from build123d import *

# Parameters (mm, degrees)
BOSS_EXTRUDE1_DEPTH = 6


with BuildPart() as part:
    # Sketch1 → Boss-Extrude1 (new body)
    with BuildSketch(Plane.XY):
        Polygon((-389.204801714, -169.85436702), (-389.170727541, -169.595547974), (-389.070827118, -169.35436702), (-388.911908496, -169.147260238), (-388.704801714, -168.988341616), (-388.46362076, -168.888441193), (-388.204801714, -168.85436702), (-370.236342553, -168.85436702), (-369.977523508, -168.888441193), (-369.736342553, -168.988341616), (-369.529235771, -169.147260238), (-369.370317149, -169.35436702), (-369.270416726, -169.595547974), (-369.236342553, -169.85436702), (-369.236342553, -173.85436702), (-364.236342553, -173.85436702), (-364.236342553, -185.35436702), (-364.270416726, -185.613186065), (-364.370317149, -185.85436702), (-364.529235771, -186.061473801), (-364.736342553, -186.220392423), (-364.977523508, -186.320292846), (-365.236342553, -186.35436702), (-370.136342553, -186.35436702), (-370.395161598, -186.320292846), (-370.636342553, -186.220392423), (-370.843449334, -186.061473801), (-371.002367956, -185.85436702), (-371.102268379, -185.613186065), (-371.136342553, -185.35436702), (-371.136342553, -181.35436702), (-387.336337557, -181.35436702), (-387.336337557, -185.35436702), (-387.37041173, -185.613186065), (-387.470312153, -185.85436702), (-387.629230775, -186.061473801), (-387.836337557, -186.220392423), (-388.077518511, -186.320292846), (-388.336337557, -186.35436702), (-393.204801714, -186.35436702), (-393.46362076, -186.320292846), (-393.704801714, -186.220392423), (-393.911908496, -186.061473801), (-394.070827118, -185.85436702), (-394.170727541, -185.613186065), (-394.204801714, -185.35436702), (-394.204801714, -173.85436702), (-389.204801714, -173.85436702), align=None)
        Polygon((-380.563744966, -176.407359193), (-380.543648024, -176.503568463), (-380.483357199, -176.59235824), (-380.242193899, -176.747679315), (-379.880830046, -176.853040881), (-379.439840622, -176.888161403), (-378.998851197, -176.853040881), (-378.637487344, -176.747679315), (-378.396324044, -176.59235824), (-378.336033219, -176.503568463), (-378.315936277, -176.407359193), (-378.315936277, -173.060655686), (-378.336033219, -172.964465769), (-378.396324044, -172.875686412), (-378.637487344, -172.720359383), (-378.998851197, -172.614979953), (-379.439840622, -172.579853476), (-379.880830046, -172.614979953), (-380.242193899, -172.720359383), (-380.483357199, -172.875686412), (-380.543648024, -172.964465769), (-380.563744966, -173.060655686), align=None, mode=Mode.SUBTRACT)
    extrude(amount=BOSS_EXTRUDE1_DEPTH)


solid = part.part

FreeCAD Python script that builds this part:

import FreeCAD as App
import Part
import Sketcher
Q = App.Units.Quantity

doc = App.newDocument("Part")
body = doc.addObject("PartDesign::Body", "Body")

sketch1 = body.newObject("Sketcher::SketchObject", "Sketch")
sketch1.AttachmentSupport = (doc.getObject("XY_Plane"), [""])
sketch1.MapMode = "FlatFace"
sketch1.addGeometry(Part.LineSegment(App.Vector(-389.170728, -169.595548, 0), App.Vector(-389.204802, -169.854367, 0)), False)
sketch1.addGeometry(Part.LineSegment(App.Vector(-389.204802, -169.854367, 0), App.Vector(-389.204802, -173.854367, 0)), False)
sketch1.addGeometry(Part.LineSegment(App.Vector(-389.204802, -173.854367, 0), App.Vector(-394.204802, -173.854367, 0)), False)
sketch1.addGeometry(Part.LineSegment(App.Vector(-394.204802, -173.854367, 0), App.Vector(-394.204802, -185.354367, 0)), False)
sketch1.addGeometry(Part.LineSegment(App.Vector(-394.204802, -185.354367, 0), App.Vector(-394.170728, -185.613186, 0)), False)
sketch1.addGeometry(Part.LineSegment(App.Vector(-394.170728, -185.613186, 0), App.Vector(-394.070827, -185.854367, 0)), False)
sketch1.addGeometry(Part.LineSegment(App.Vector(-394.070827, -185.854367, 0), App.Vector(-393.911908, -186.061474, 0)), False)
sketch1.addGeometry(Part.LineSegment(App.Vector(-393.911908, -186.061474, 0), App.Vector(-393.704802, -186.220392, 0)), False)
sketch1.addGeometry(Part.LineSegment(App.Vector(-393.704802, -186.220392, 0), App.Vector(-393.463621, -186.320293, 0)), False)
sketch1.addGeometry(Part.LineSegment(App.Vector(-393.463621, -186.320293, 0), App.Vector(-393.204802, -186.354367, 0)), False)
sketch1.addGeometry(Part.LineSegment(App.Vector(-393.204802, -186.354367, 0), App.Vector(-388.336338, -186.354367, 0)), False)
sketch1.addGeometry(Part.LineSegment(App.Vector(-388.336338, -186.354367, 0), App.Vector(-388.077519, -186.320293, 0)), False)
sketch1.addGeometry(Part.LineSegment(App.Vector(-388.077519, -186.320293, 0), App.Vector(-387.836338, -186.220392, 0)), False)
sketch1.addGeometry(Part.LineSegment(App.Vector(-387.836338, -186.220392, 0), App.Vector(-387.629231, -186.061474, 0)), False)
sketch1.addGeometry(Part.LineSegment(App.Vector(-387.629231, -186.061474, 0), App.Vector(-387.470312, -185.854367, 0)), False)
sketch1.addGeometry(Part.LineSegment(App.Vector(-387.470312, -185.854367, 0), App.Vector(-387.370412, -185.613186, 0)), False)
sketch1.addGeometry(Part.LineSegment(App.Vector(-387.370412, -185.613186, 0), App.Vector(-387.336338, -185.354367, 0)), False)
sketch1.addGeometry(Part.LineSegment(App.Vector(-387.336338, -185.354367, 0), App.Vector(-387.336338, -181.354367, 0)), False)
sketch1.addGeometry(Part.LineSegment(App.Vector(-387.336338, -181.354367, 0), App.Vector(-371.136343, -181.354367, 0)), False)
sketch1.addGeometry(Part.LineSegment(App.Vector(-371.136343, -181.354367, 0), App.Vector(-371.136343, -185.354367, 0)), False)
sketch1.addGeometry(Part.LineSegment(App.Vector(-371.136343, -185.354367, 0), App.Vector(-371.102268, -185.613186, 0)), False)
sketch1.addGeometry(Part.LineSegment(App.Vector(-371.102268, -185.613186, 0), App.Vector(-371.002368, -185.854367, 0)), False)
sketch1.addGeometry(Part.LineSegment(App.Vector(-371.002368, -185.854367, 0), App.Vector(-370.843449, -186.061474, 0)), False)
sketch1.addGeometry(Part.LineSegment(App.Vector(-370.843449, -186.061474, 0), App.Vector(-370.636343, -186.220392, 0)), False)
sketch1.addGeometry(Part.LineSegment(App.Vector(-370.636343, -186.220392, 0), App.Vector(-370.395162, -186.320293, 0)), False)
sketch1.addGeometry(Part.LineSegment(App.Vector(-370.395162, -186.320293, 0), App.Vector(-370.136343, -186.354367, 0)), False)
sketch1.addGeometry(Part.LineSegment(App.Vector(-370.136343, -186.354367, 0), App.Vector(-365.236343, -186.354367, 0)), False)
sketch1.addGeometry(Part.LineSegment(App.Vector(-365.236343, -186.354367, 0), App.Vector(-364.977524, -186.320293, 0)), False)
sketch1.addGeometry(Part.LineSegment(App.Vector(-364.977524, -186.320293, 0), App.Vector(-364.736343, -186.220392, 0)), False)
sketch1.addGeometry(Part.LineSegment(App.Vector(-364.736343, -186.220392, 0), App.Vector(-364.529236, -186.061474, 0)), False)
sketch1.addGeometry(Part.LineSegment(App.Vector(-364.529236, -186.061474, 0), App.Vector(-364.370317, -185.854367, 0)), False)
sketch1.addGeometry(Part.LineSegment(App.Vector(-364.370317, -185.854367, 0), App.Vector(-364.270417, -185.613186, 0)), False)
sketch1.addGeometry(Part.LineSegment(App.Vector(-364.270417, -185.613186, 0), App.Vector(-364.236343, -185.354367, 0)), False)
sketch1.addGeometry(Part.LineSegment(App.Vector(-364.236343, -185.354367, 0), App.Vector(-364.236343, -173.854367, 0)), False)
sketch1.addGeometry(Part.LineSegment(App.Vector(-364.236343, -173.854367, 0), App.Vector(-369.236343, -173.854367, 0)), False)
sketch1.addGeometry(Part.LineSegment(App.Vector(-369.236343, -173.854367, 0), App.Vector(-369.236343, -169.854367, 0)), False)
sketch1.addGeometry(Part.LineSegment(App.Vector(-369.236343, -169.854367, 0), App.Vector(-369.270417, -169.595548, 0)), False)
sketch1.addGeometry(Part.LineSegment(App.Vector(-369.270417, -169.595548, 0), App.Vector(-369.370317, -169.354367, 0)), False)
sketch1.addGeometry(Part.LineSegment(App.Vector(-369.370317, -169.354367, 0), App.Vector(-369.529236, -169.14726, 0)), False)
sketch1.addGeometry(Part.LineSegment(App.Vector(-369.529236, -169.14726, 0), App.Vector(-369.736343, -168.988342, 0)), False)
sketch1.addGeometry(Part.LineSegment(App.Vector(-369.736343, -168.988342, 0), App.Vector(-369.977524, -168.888441, 0)), False)
sketch1.addGeometry(Part.LineSegment(App.Vector(-369.977524, -168.888441, 0), App.Vector(-370.236343, -168.854367, 0)), False)
sketch1.addGeometry(Part.LineSegment(App.Vector(-370.236343, -168.854367, 0), App.Vector(-388.204802, -168.854367, 0)), False)
sketch1.addGeometry(Part.LineSegment(App.Vector(-388.204802, -168.854367, 0), App.Vector(-388.463621, -168.888441, 0)), False)
sketch1.addGeometry(Part.LineSegment(App.Vector(-388.463621, -168.888441, 0), App.Vector(-388.704802, -168.988342, 0)), False)
sketch1.addGeometry(Part.LineSegment(App.Vector(-388.704802, -168.988342, 0), App.Vector(-388.911908, -169.14726, 0)), False)
sketch1.addGeometry(Part.LineSegment(App.Vector(-388.911908, -169.14726, 0), App.Vector(-389.070827, -169.354367, 0)), False)
sketch1.addGeometry(Part.LineSegment(App.Vector(-389.070827, -169.354367, 0), App.Vector(-389.170728, -169.595548, 0)), False)
sketch1.addGeometry(Part.LineSegment(App.Vector(-380.563745, -176.407359, 0), App.Vector(-380.563745, -173.060656, 0)), False)
sketch1.addGeometry(Part.LineSegment(App.Vector(-380.563745, -173.060656, 0), App.Vector(-380.543648, -172.964466, 0)), False)
sketch1.addGeometry(Part.LineSegment(App.Vector(-380.543648, -172.964466, 0), App.Vector(-380.483357, -172.875686, 0)), False)
sketch1.addGeometry(Part.LineSegment(App.Vector(-380.483357, -172.875686, 0), App.Vector(-380.242194, -172.720359, 0)), False)
sketch1.addGeometry(Part.LineSegment(App.Vector(-380.242194, -172.720359, 0), App.Vector(-379.88083, -172.61498, 0)), False)
sketch1.addGeometry(Part.LineSegment(App.Vector(-379.88083, -172.61498, 0), App.Vector(-379.439841, -172.579853, 0)), False)
sketch1.addGeometry(Part.LineSegment(App.Vector(-379.439841, -172.579853, 0), App.Vector(-378.998851, -172.61498, 0)), False)
sketch1.addGeometry(Part.LineSegment(App.Vector(-378.998851, -172.61498, 0), App.Vector(-378.637487, -172.720359, 0)), False)
sketch1.addGeometry(Part.LineSegment(App.Vector(-378.637487, -172.720359, 0), App.Vector(-378.396324, -172.875686, 0)), False)
sketch1.addGeometry(Part.LineSegment(App.Vector(-378.396324, -172.875686, 0), App.Vector(-378.336033, -172.964466, 0)), False)
sketch1.addGeometry(Part.LineSegment(App.Vector(-378.336033, -172.964466, 0), App.Vector(-378.315936, -173.060656, 0)), False)
sketch1.addGeometry(Part.LineSegment(App.Vector(-378.315936, -173.060656, 0), App.Vector(-378.315936, -176.407359, 0)), False)
sketch1.addGeometry(Part.LineSegment(App.Vector(-378.315936, -176.407359, 0), App.Vector(-378.336033, -176.503568, 0)), False)
sketch1.addGeometry(Part.LineSegment(App.Vector(-378.336033, -176.503568, 0), App.Vector(-378.396324, -176.592358, 0)), False)
sketch1.addGeometry(Part.LineSegment(App.Vector(-378.396324, -176.592358, 0), App.Vector(-378.637487, -176.747679, 0)), False)
sketch1.addGeometry(Part.LineSegment(App.Vector(-378.637487, -176.747679, 0), App.Vector(-378.998851, -176.853041, 0)), False)
sketch1.addGeometry(Part.LineSegment(App.Vector(-378.998851, -176.853041, 0), App.Vector(-379.439841, -176.888161, 0)), False)
sketch1.addGeometry(Part.LineSegment(App.Vector(-379.439841, -176.888161, 0), App.Vector(-379.88083, -176.853041, 0)), False)
sketch1.addGeometry(Part.LineSegment(App.Vector(-379.88083, -176.853041, 0), App.Vector(-380.242194, -176.747679, 0)), False)
sketch1.addGeometry(Part.LineSegment(App.Vector(-380.242194, -176.747679, 0), App.Vector(-380.483357, -176.592358, 0)), False)
sketch1.addGeometry(Part.LineSegment(App.Vector(-380.483357, -176.592358, 0), App.Vector(-380.543648, -176.503568, 0)), False)
sketch1.addGeometry(Part.LineSegment(App.Vector(-380.543648, -176.503568, 0), App.Vector(-380.563745, -176.407359, 0)), False)
sketch1.addConstraint(Sketcher.Constraint("Coincident", 0, 2, 1, 1))
sketch1.addConstraint(Sketcher.Constraint("Coincident", 1, 2, 2, 1))
sketch1.addConstraint(Sketcher.Constraint("Coincident", 2, 2, 3, 1))
sketch1.addConstraint(Sketcher.Constraint("Coincident", 3, 2, 4, 1))
sketch1.addConstraint(Sketcher.Constraint("Coincident", 4, 2, 5, 1))
sketch1.addConstraint(Sketcher.Constraint("Coincident", 5, 2, 6, 1))
sketch1.addConstraint(Sketcher.Constraint("Coincident", 6, 2, 7, 1))
sketch1.addConstraint(Sketcher.Constraint("Coincident", 7, 2, 8, 1))
sketch1.addConstraint(Sketcher.Constraint("Coincident", 8, 2, 9, 1))
sketch1.addConstraint(Sketcher.Constraint("Coincident", 9, 2, 10, 1))
sketch1.addConstraint(Sketcher.Constraint("Coincident", 10, 2, 11, 1))
sketch1.addConstraint(Sketcher.Constraint("Coincident", 11, 2, 12, 1))
sketch1.addConstraint(Sketcher.Constraint("Coincident", 12, 2, 13, 1))
sketch1.addConstraint(Sketcher.Constraint("Coincident", 13, 2, 14, 1))
sketch1.addConstraint(Sketcher.Constraint("Coincident", 14, 2, 15, 1))
sketch1.addConstraint(Sketcher.Constraint("Coincident", 15, 2, 16, 1))
sketch1.addConstraint(Sketcher.Constraint("Coincident", 16, 2, 17, 1))
sketch1.addConstraint(Sketcher.Constraint("Coincident", 17, 2, 18, 1))
sketch1.addConstraint(Sketcher.Constraint("Coincident", 18, 2, 19, 1))
sketch1.addConstraint(Sketcher.Constraint("Coincident", 19, 2, 20, 1))
sketch1.addConstraint(Sketcher.Constraint("Coincident", 20, 2, 21, 1))
sketch1.addConstraint(Sketcher.Constraint("Coincident", 21, 2, 22, 1))
sketch1.addConstraint(Sketcher.Constraint("Coincident", 22, 2, 23, 1))
sketch1.addConstraint(Sketcher.Constraint("Coincident", 23, 2, 24, 1))
sketch1.addConstraint(Sketcher.Constraint("Coincident", 24, 2, 25, 1))
sketch1.addConstraint(Sketcher.Constraint("Coincident", 25, 2, 26, 1))
sketch1.addConstraint(Sketcher.Constraint("Coincident", 26, 2, 27, 1))
sketch1.addConstraint(Sketcher.Constraint("Coincident", 27, 2, 28, 1))
sketch1.addConstraint(Sketcher.Constraint("Coincident", 28, 2, 29, 1))
sketch1.addConstraint(Sketcher.Constraint("Coincident", 29, 2, 30, 1))
sketch1.addConstraint(Sketcher.Constraint("Coincident", 30, 2, 31, 1))
sketch1.addConstraint(Sketcher.Constraint("Coincident", 31, 2, 32, 1))
sketch1.addConstraint(Sketcher.Constraint("Coincident", 32, 2, 33, 1))
sketch1.addConstraint(Sketcher.Constraint("Coincident", 33, 2, 34, 1))
sketch1.addConstraint(Sketcher.Constraint("Coincident", 34, 2, 35, 1))
sketch1.addConstraint(Sketcher.Constraint("Coincident", 35, 2, 36, 1))
sketch1.addConstraint(Sketcher.Constraint("Coincident", 36, 2, 37, 1))
sketch1.addConstraint(Sketcher.Constraint("Coincident", 37, 2, 38, 1))
sketch1.addConstraint(Sketcher.Constraint("Coincident", 38, 2, 39, 1))
sketch1.addConstraint(Sketcher.Constraint("Coincident", 39, 2, 40, 1))
sketch1.addConstraint(Sketcher.Constraint("Coincident", 40, 2, 41, 1))
sketch1.addConstraint(Sketcher.Constraint("Coincident", 41, 2, 42, 1))
sketch1.addConstraint(Sketcher.Constraint("Coincident", 42, 2, 43, 1))
sketch1.addConstraint(Sketcher.Constraint("Coincident", 43, 2, 44, 1))
sketch1.addConstraint(Sketcher.Constraint("Coincident", 44, 2, 45, 1))
sketch1.addConstraint(Sketcher.Constraint("Coincident", 45, 2, 46, 1))
sketch1.addConstraint(Sketcher.Constraint("Coincident", 46, 2, 47, 1))
sketch1.addConstraint(Sketcher.Constraint("Coincident", 47, 2, 0, 1))
sketch1.addConstraint(Sketcher.Constraint("Coincident", 48, 2, 49, 1))
sketch1.addConstraint(Sketcher.Constraint("Coincident", 49, 2, 50, 1))
sketch1.addConstraint(Sketcher.Constraint("Coincident", 50, 2, 51, 1))
sketch1.addConstraint(Sketcher.Constraint("Coincident", 51, 2, 52, 1))
sketch1.addConstraint(Sketcher.Constraint("Coincident", 52, 2, 53, 1))
sketch1.addConstraint(Sketcher.Constraint("Coincident", 53, 2, 54, 1))
sketch1.addConstraint(Sketcher.Constraint("Coincident", 54, 2, 55, 1))
sketch1.addConstraint(Sketcher.Constraint("Coincident", 55, 2, 56, 1))
sketch1.addConstraint(Sketcher.Constraint("Coincident", 56, 2, 57, 1))
sketch1.addConstraint(Sketcher.Constraint("Coincident", 57, 2, 58, 1))
sketch1.addConstraint(Sketcher.Constraint("Coincident", 58, 2, 59, 1))
sketch1.addConstraint(Sketcher.Constraint("Coincident", 59, 2, 60, 1))
sketch1.addConstraint(Sketcher.Constraint("Coincident", 60, 2, 61, 1))
sketch1.addConstraint(Sketcher.Constraint("Coincident", 61, 2, 62, 1))
sketch1.addConstraint(Sketcher.Constraint("Coincident", 62, 2, 63, 1))
sketch1.addConstraint(Sketcher.Constraint("Coincident", 63, 2, 64, 1))
sketch1.addConstraint(Sketcher.Constraint("Coincident", 64, 2, 65, 1))
sketch1.addConstraint(Sketcher.Constraint("Coincident", 65, 2, 66, 1))
sketch1.addConstraint(Sketcher.Constraint("Coincident", 66, 2, 67, 1))
sketch1.addConstraint(Sketcher.Constraint("Coincident", 67, 2, 68, 1))
sketch1.addConstraint(Sketcher.Constraint("Coincident", 68, 2, 69, 1))
sketch1.addConstraint(Sketcher.Constraint("Coincident", 69, 2, 48, 1))
sketch1.addConstraint(Sketcher.Constraint("Vertical", 1))
sketch1.addConstraint(Sketcher.Constraint("Horizontal", 2))
sketch1.addConstraint(Sketcher.Constraint("Vertical", 3))
sketch1.addConstraint(Sketcher.Constraint("Horizontal", 10))
sketch1.addConstraint(Sketcher.Constraint("Vertical", 17))
sketch1.addConstraint(Sketcher.Constraint("Horizontal", 18))
sketch1.addConstraint(Sketcher.Constraint("Vertical", 19))
sketch1.addConstraint(Sketcher.Constraint("Horizontal", 26))
sketch1.addConstraint(Sketcher.Constraint("Vertical", 33))
sketch1.addConstraint(Sketcher.Constraint("Horizontal", 34))
sketch1.addConstraint(Sketcher.Constraint("Vertical", 35))
sketch1.addConstraint(Sketcher.Constraint("Horizontal", 42))
sketch1.addConstraint(Sketcher.Constraint("Vertical", 48))
sketch1.addConstraint(Sketcher.Constraint("Vertical", 59))
sketch1.addConstraint(Sketcher.Constraint("Perpendicular", 0, 9))
sketch1.addConstraint(Sketcher.Constraint("Perpendicular", 4, 11))
sketch1.addConstraint(Sketcher.Constraint("Perpendicular", 5, 12))
sketch1.addConstraint(Sketcher.Constraint("Perpendicular", 6, 13))
sketch1.addConstraint(Sketcher.Constraint("Perpendicular", 7, 14))
sketch1.addConstraint(Sketcher.Constraint("Perpendicular", 8, 15))
sketch1.addConstraint(Sketcher.Constraint("Perpendicular", 9, 16))
sketch1.addConstraint(Sketcher.Constraint("Perpendicular", 11, 20))
sketch1.addConstraint(Sketcher.Constraint("Perpendicular", 12, 21))
sketch1.addConstraint(Sketcher.Constraint("Perpendicular", 13, 22))
sketch1.addConstraint(Sketcher.Constraint("Perpendicular", 14, 23))
sketch1.addConstraint(Sketcher.Constraint("Perpendicular", 15, 24))
sketch1.addConstraint(Sketcher.Constraint("Perpendicular", 16, 25))
sketch1.addConstraint(Sketcher.Constraint("Perpendicular", 20, 27))
sketch1.addConstraint(Sketcher.Constraint("Perpendicular", 21, 28))
sketch1.addConstraint(Sketcher.Constraint("Perpendicular", 22, 29))
sketch1.addConstraint(Sketcher.Constraint("Perpendicular", 23, 30))
sketch1.addConstraint(Sketcher.Constraint("Perpendicular", 24, 31))
sketch1.addConstraint(Sketcher.Constraint("Perpendicular", 25, 32))
sketch1.addConstraint(Sketcher.Constraint("Perpendicular", 27, 36))
sketch1.addConstraint(Sketcher.Constraint("Perpendicular", 28, 37))
sketch1.addConstraint(Sketcher.Constraint("Perpendicular", 29, 38))
sketch1.addConstraint(Sketcher.Constraint("Perpendicular", 30, 39))
sketch1.addConstraint(Sketcher.Constraint("Perpendicular", 31, 40))
sketch1.addConstraint(Sketcher.Constraint("Perpendicular", 32, 41))
sketch1.addConstraint(Sketcher.Constraint("Perpendicular", 36, 43))
sketch1.addConstraint(Sketcher.Constraint("Perpendicular", 37, 44))
sketch1.addConstraint(Sketcher.Constraint("Perpendicular", 38, 45))
sketch1.addConstraint(Sketcher.Constraint("Perpendicular", 39, 46))
sketch1.addConstraint(Sketcher.Constraint("Perpendicular", 40, 47))
sketch1.addConstraint(Sketcher.Constraint("Horizontal", 8, 2, 11, 2))
sketch1.addConstraint(Sketcher.Constraint("Horizontal", 7, 2, 12, 2))
sketch1.addConstraint(Sketcher.Constraint("Horizontal", 6, 2, 13, 2))
sketch1.addConstraint(Sketcher.Constraint("Horizontal", 5, 2, 14, 2))
sketch1.addConstraint(Sketcher.Constraint("Horizontal", 4, 2, 15, 2))
sketch1.addConstraint(Sketcher.Constraint("Horizontal", 3, 2, 16, 2))
sketch1.addConstraint(Sketcher.Constraint("Horizontal", 16, 2, 19, 2))
sketch1.addConstraint(Sketcher.Constraint("Horizontal", 15, 2, 20, 2))
sketch1.addConstraint(Sketcher.Constraint("Horizontal", 14, 2, 21, 2))
sketch1.addConstraint(Sketcher.Constraint("Horizontal", 13, 2, 22, 2))
sketch1.addConstraint(Sketcher.Constraint("Horizontal", 12, 2, 23, 2))
sketch1.addConstraint(Sketcher.Constraint("Horizontal", 11, 2, 24, 2))
sketch1.addConstraint(Sketcher.Constraint("Horizontal", 10, 2, 25, 2))
sketch1.addConstraint(Sketcher.Constraint("Horizontal", 24, 2, 27, 2))
sketch1.addConstraint(Sketcher.Constraint("Horizontal", 23, 2, 28, 2))
sketch1.addConstraint(Sketcher.Constraint("Horizontal", 22, 2, 29, 2))
sketch1.addConstraint(Sketcher.Constraint("Horizontal", 21, 2, 30, 2))
sketch1.addConstraint(Sketcher.Constraint("Horizontal", 20, 2, 31, 2))
sketch1.addConstraint(Sketcher.Constraint("Horizontal", 19, 2, 32, 2))
sketch1.addConstraint(Sketcher.Constraint("Horizontal", 2, 2, 33, 2))
sketch1.addConstraint(Sketcher.Constraint("Horizontal", 0, 2, 35, 2))
sketch1.addConstraint(Sketcher.Constraint("Horizontal", 40, 2, 43, 2))
sketch1.addConstraint(Sketcher.Constraint("Horizontal", 39, 2, 44, 2))
sketch1.addConstraint(Sketcher.Constraint("Horizontal", 38, 2, 45, 2))
sketch1.addConstraint(Sketcher.Constraint("Horizontal", 37, 2, 46, 2))
sketch1.addConstraint(Sketcher.Constraint("Horizontal", 36, 2, 47, 2))
sketch1.addConstraint(Sketcher.Constraint("Horizontal", 52, 2, 54, 2))
sketch1.addConstraint(Sketcher.Constraint("Horizontal", 51, 2, 55, 2))
sketch1.addConstraint(Sketcher.Constraint("Horizontal", 50, 2, 56, 2))
sketch1.addConstraint(Sketcher.Constraint("Horizontal", 49, 2, 57, 2))
sketch1.addConstraint(Sketcher.Constraint("Horizontal", 48, 2, 58, 2))
sketch1.addConstraint(Sketcher.Constraint("Horizontal", 63, 2, 65, 2))
sketch1.addConstraint(Sketcher.Constraint("Horizontal", 62, 2, 66, 2))
sketch1.addConstraint(Sketcher.Constraint("Horizontal", 61, 2, 67, 2))
sketch1.addConstraint(Sketcher.Constraint("Horizontal", 60, 2, 68, 2))
sketch1.addConstraint(Sketcher.Constraint("Horizontal", 59, 2, 69, 2))
sketch1.addConstraint(Sketcher.Constraint("Vertical", 57, 2, 60, 2))
sketch1.addConstraint(Sketcher.Constraint("Vertical", 56, 2, 61, 2))
sketch1.addConstraint(Sketcher.Constraint("Vertical", 55, 2, 62, 2))
sketch1.addConstraint(Sketcher.Constraint("Vertical", 54, 2, 63, 2))
sketch1.addConstraint(Sketcher.Constraint("Vertical", 53, 2, 64, 2))
sketch1.addConstraint(Sketcher.Constraint("Vertical", 52, 2, 65, 2))
sketch1.addConstraint(Sketcher.Constraint("Vertical", 51, 2, 66, 2))
sketch1.addConstraint(Sketcher.Constraint("Vertical", 50, 2, 67, 2))
sketch1.addConstraint(Sketcher.Constraint("Vertical", 49, 2, 68, 2))
sketch1.addConstraint(Sketcher.Constraint("Equal", 2, 34))
sketch1.addConstraint(Sketcher.Constraint("Equal", 1, 17))
sketch1.addConstraint(Sketcher.Constraint("Equal", 0, 4))
sketch1.addConstraint(Sketcher.Constraint("Equal", 4, 5))
sketch1.addConstraint(Sketcher.Constraint("Equal", 5, 6))
sketch1.addConstraint(Sketcher.Constraint("Equal", 6, 7))
sketch1.addConstraint(Sketcher.Constraint("Equal", 7, 8))
sketch1.addConstraint(Sketcher.Constraint("Equal", 8, 9))
sketch1.addConstraint(Sketcher.Constraint("Equal", 9, 11))
sketch1.addConstraint(Sketcher.Constraint("Equal", 11, 12))
sketch1.addConstraint(Sketcher.Constraint("Equal", 12, 13))
sketch1.addConstraint(Sketcher.Constraint("Equal", 36, 37))
sketch1.addConstraint(Sketcher.Constraint("Equal", 37, 38))
sketch1.addConstraint(Sketcher.Constraint("Equal", 38, 39))
sketch1.addConstraint(Sketcher.Constraint("Equal", 39, 40))
sketch1.addConstraint(Sketcher.Constraint("Equal", 40, 41))
sketch1.addConstraint(Sketcher.Constraint("Equal", 53, 54))
sketch1.addConstraint(Sketcher.Constraint("Equal", 52, 55))
sketch1.addConstraint(Sketcher.Constraint("Equal", 51, 56))
sketch1.addConstraint(Sketcher.Constraint("Equal", 50, 57))
sketch1.addConstraint(Sketcher.Constraint("Equal", 49, 58))
sketch1.addConstraint(Sketcher.Constraint("Equal", 54, 64))
sketch1.addConstraint(Sketcher.Constraint("DistanceX", 2, 2, 2, 1, 5.0))
sketch1.addConstraint(Sketcher.Constraint("DistanceY", 1, 2, 1, 1, 4.0))
sketch1.addConstraint(Sketcher.Constraint("DistanceX", 26, 1, 26, 2, 4.9))
sketch1.addConstraint(Sketcher.Constraint("DistanceY", 3, 2, 3, 1, 11.5))
sketch1.addConstraint(Sketcher.Constraint("Angle", 0, Q("-97.5 deg")))
sketch1.addConstraint(Sketcher.Constraint("Angle", 5, Q("-67.5 deg")))
sketch1.addConstraint(Sketcher.Constraint("Angle", 6, Q("-52.5 deg")))
sketch1.addConstraint(Sketcher.Constraint("DistanceX", 42, 2, 42, 1, 17.968459))
sketch1.addConstraint(Sketcher.Constraint("DistanceX", 0, 2, -1, 1, 389.204802))
sketch1.addConstraint(Sketcher.Constraint("DistanceX", 7, 2, -1, 1, 393.704802))
sketch1.addConstraint(Sketcher.Constraint("Distance", 63, 0.376411))
sketch1.addConstraint(Sketcher.Constraint("DistanceX", 10, 1, 10, 2, 4.868464))
sketch1.addConstraint(Sketcher.Constraint("DistanceY", 48, 1, 48, 2, 3.346704))
sketch1.addConstraint(Sketcher.Constraint("DistanceY", 38, 2, -1, 1, 169.14726))
sketch1.addConstraint(Sketcher.Constraint("DistanceX", 49, 2, -1, 1, 380.543648))
sketch1.addConstraint(Sketcher.Constraint("DistanceY", 51, 2, -1, 1, 172.720359))
sketch1.addConstraint(Sketcher.Constraint("DistanceX", 52, 2, -1, 1, 379.88083))
sketch1.addConstraint(Sketcher.Constraint("DistanceY", 52, 2, -1, 1, 172.61498))
sketch1.addConstraint(Sketcher.Constraint("DistanceX", 53, 2, -1, 1, 379.439841))
sketch1.addConstraint(Sketcher.Constraint("DistanceY", 59, 2, -1, 1, 176.407359))
sketch1.addConstraint(Sketcher.Constraint("DistanceY", 60, 2, -1, 1, 176.503568))
sketch1.addConstraint(Sketcher.Constraint("DistanceY", 61, 2, -1, 1, 176.592358))
sketch1.addConstraint(Sketcher.Constraint("DistanceY", 62, 2, -1, 1, 176.747679))
sketch1.addConstraint(Sketcher.Constraint("DistanceY", 63, 2, -1, 1, 176.853041))
sketch1.addConstraint(Sketcher.Constraint("DistanceY", 64, 2, -1, 1, 176.888161))
sketch1.addConstraint(Sketcher.Constraint("Distance", 49, 0.098267))
sketch1.addConstraint(Sketcher.Constraint("Distance", 50, 0.107316))
sketch1.addConstraint(Sketcher.Constraint("Distance", 51, 0.286856))
sketch1.addConstraint(Sketcher.Constraint("Distance", 60, 0.098286))
pad1 = body.newObject("PartDesign::Pad", "Pad")
pad1.Profile = sketch1
pad1.Length = 6

doc.recompute()
